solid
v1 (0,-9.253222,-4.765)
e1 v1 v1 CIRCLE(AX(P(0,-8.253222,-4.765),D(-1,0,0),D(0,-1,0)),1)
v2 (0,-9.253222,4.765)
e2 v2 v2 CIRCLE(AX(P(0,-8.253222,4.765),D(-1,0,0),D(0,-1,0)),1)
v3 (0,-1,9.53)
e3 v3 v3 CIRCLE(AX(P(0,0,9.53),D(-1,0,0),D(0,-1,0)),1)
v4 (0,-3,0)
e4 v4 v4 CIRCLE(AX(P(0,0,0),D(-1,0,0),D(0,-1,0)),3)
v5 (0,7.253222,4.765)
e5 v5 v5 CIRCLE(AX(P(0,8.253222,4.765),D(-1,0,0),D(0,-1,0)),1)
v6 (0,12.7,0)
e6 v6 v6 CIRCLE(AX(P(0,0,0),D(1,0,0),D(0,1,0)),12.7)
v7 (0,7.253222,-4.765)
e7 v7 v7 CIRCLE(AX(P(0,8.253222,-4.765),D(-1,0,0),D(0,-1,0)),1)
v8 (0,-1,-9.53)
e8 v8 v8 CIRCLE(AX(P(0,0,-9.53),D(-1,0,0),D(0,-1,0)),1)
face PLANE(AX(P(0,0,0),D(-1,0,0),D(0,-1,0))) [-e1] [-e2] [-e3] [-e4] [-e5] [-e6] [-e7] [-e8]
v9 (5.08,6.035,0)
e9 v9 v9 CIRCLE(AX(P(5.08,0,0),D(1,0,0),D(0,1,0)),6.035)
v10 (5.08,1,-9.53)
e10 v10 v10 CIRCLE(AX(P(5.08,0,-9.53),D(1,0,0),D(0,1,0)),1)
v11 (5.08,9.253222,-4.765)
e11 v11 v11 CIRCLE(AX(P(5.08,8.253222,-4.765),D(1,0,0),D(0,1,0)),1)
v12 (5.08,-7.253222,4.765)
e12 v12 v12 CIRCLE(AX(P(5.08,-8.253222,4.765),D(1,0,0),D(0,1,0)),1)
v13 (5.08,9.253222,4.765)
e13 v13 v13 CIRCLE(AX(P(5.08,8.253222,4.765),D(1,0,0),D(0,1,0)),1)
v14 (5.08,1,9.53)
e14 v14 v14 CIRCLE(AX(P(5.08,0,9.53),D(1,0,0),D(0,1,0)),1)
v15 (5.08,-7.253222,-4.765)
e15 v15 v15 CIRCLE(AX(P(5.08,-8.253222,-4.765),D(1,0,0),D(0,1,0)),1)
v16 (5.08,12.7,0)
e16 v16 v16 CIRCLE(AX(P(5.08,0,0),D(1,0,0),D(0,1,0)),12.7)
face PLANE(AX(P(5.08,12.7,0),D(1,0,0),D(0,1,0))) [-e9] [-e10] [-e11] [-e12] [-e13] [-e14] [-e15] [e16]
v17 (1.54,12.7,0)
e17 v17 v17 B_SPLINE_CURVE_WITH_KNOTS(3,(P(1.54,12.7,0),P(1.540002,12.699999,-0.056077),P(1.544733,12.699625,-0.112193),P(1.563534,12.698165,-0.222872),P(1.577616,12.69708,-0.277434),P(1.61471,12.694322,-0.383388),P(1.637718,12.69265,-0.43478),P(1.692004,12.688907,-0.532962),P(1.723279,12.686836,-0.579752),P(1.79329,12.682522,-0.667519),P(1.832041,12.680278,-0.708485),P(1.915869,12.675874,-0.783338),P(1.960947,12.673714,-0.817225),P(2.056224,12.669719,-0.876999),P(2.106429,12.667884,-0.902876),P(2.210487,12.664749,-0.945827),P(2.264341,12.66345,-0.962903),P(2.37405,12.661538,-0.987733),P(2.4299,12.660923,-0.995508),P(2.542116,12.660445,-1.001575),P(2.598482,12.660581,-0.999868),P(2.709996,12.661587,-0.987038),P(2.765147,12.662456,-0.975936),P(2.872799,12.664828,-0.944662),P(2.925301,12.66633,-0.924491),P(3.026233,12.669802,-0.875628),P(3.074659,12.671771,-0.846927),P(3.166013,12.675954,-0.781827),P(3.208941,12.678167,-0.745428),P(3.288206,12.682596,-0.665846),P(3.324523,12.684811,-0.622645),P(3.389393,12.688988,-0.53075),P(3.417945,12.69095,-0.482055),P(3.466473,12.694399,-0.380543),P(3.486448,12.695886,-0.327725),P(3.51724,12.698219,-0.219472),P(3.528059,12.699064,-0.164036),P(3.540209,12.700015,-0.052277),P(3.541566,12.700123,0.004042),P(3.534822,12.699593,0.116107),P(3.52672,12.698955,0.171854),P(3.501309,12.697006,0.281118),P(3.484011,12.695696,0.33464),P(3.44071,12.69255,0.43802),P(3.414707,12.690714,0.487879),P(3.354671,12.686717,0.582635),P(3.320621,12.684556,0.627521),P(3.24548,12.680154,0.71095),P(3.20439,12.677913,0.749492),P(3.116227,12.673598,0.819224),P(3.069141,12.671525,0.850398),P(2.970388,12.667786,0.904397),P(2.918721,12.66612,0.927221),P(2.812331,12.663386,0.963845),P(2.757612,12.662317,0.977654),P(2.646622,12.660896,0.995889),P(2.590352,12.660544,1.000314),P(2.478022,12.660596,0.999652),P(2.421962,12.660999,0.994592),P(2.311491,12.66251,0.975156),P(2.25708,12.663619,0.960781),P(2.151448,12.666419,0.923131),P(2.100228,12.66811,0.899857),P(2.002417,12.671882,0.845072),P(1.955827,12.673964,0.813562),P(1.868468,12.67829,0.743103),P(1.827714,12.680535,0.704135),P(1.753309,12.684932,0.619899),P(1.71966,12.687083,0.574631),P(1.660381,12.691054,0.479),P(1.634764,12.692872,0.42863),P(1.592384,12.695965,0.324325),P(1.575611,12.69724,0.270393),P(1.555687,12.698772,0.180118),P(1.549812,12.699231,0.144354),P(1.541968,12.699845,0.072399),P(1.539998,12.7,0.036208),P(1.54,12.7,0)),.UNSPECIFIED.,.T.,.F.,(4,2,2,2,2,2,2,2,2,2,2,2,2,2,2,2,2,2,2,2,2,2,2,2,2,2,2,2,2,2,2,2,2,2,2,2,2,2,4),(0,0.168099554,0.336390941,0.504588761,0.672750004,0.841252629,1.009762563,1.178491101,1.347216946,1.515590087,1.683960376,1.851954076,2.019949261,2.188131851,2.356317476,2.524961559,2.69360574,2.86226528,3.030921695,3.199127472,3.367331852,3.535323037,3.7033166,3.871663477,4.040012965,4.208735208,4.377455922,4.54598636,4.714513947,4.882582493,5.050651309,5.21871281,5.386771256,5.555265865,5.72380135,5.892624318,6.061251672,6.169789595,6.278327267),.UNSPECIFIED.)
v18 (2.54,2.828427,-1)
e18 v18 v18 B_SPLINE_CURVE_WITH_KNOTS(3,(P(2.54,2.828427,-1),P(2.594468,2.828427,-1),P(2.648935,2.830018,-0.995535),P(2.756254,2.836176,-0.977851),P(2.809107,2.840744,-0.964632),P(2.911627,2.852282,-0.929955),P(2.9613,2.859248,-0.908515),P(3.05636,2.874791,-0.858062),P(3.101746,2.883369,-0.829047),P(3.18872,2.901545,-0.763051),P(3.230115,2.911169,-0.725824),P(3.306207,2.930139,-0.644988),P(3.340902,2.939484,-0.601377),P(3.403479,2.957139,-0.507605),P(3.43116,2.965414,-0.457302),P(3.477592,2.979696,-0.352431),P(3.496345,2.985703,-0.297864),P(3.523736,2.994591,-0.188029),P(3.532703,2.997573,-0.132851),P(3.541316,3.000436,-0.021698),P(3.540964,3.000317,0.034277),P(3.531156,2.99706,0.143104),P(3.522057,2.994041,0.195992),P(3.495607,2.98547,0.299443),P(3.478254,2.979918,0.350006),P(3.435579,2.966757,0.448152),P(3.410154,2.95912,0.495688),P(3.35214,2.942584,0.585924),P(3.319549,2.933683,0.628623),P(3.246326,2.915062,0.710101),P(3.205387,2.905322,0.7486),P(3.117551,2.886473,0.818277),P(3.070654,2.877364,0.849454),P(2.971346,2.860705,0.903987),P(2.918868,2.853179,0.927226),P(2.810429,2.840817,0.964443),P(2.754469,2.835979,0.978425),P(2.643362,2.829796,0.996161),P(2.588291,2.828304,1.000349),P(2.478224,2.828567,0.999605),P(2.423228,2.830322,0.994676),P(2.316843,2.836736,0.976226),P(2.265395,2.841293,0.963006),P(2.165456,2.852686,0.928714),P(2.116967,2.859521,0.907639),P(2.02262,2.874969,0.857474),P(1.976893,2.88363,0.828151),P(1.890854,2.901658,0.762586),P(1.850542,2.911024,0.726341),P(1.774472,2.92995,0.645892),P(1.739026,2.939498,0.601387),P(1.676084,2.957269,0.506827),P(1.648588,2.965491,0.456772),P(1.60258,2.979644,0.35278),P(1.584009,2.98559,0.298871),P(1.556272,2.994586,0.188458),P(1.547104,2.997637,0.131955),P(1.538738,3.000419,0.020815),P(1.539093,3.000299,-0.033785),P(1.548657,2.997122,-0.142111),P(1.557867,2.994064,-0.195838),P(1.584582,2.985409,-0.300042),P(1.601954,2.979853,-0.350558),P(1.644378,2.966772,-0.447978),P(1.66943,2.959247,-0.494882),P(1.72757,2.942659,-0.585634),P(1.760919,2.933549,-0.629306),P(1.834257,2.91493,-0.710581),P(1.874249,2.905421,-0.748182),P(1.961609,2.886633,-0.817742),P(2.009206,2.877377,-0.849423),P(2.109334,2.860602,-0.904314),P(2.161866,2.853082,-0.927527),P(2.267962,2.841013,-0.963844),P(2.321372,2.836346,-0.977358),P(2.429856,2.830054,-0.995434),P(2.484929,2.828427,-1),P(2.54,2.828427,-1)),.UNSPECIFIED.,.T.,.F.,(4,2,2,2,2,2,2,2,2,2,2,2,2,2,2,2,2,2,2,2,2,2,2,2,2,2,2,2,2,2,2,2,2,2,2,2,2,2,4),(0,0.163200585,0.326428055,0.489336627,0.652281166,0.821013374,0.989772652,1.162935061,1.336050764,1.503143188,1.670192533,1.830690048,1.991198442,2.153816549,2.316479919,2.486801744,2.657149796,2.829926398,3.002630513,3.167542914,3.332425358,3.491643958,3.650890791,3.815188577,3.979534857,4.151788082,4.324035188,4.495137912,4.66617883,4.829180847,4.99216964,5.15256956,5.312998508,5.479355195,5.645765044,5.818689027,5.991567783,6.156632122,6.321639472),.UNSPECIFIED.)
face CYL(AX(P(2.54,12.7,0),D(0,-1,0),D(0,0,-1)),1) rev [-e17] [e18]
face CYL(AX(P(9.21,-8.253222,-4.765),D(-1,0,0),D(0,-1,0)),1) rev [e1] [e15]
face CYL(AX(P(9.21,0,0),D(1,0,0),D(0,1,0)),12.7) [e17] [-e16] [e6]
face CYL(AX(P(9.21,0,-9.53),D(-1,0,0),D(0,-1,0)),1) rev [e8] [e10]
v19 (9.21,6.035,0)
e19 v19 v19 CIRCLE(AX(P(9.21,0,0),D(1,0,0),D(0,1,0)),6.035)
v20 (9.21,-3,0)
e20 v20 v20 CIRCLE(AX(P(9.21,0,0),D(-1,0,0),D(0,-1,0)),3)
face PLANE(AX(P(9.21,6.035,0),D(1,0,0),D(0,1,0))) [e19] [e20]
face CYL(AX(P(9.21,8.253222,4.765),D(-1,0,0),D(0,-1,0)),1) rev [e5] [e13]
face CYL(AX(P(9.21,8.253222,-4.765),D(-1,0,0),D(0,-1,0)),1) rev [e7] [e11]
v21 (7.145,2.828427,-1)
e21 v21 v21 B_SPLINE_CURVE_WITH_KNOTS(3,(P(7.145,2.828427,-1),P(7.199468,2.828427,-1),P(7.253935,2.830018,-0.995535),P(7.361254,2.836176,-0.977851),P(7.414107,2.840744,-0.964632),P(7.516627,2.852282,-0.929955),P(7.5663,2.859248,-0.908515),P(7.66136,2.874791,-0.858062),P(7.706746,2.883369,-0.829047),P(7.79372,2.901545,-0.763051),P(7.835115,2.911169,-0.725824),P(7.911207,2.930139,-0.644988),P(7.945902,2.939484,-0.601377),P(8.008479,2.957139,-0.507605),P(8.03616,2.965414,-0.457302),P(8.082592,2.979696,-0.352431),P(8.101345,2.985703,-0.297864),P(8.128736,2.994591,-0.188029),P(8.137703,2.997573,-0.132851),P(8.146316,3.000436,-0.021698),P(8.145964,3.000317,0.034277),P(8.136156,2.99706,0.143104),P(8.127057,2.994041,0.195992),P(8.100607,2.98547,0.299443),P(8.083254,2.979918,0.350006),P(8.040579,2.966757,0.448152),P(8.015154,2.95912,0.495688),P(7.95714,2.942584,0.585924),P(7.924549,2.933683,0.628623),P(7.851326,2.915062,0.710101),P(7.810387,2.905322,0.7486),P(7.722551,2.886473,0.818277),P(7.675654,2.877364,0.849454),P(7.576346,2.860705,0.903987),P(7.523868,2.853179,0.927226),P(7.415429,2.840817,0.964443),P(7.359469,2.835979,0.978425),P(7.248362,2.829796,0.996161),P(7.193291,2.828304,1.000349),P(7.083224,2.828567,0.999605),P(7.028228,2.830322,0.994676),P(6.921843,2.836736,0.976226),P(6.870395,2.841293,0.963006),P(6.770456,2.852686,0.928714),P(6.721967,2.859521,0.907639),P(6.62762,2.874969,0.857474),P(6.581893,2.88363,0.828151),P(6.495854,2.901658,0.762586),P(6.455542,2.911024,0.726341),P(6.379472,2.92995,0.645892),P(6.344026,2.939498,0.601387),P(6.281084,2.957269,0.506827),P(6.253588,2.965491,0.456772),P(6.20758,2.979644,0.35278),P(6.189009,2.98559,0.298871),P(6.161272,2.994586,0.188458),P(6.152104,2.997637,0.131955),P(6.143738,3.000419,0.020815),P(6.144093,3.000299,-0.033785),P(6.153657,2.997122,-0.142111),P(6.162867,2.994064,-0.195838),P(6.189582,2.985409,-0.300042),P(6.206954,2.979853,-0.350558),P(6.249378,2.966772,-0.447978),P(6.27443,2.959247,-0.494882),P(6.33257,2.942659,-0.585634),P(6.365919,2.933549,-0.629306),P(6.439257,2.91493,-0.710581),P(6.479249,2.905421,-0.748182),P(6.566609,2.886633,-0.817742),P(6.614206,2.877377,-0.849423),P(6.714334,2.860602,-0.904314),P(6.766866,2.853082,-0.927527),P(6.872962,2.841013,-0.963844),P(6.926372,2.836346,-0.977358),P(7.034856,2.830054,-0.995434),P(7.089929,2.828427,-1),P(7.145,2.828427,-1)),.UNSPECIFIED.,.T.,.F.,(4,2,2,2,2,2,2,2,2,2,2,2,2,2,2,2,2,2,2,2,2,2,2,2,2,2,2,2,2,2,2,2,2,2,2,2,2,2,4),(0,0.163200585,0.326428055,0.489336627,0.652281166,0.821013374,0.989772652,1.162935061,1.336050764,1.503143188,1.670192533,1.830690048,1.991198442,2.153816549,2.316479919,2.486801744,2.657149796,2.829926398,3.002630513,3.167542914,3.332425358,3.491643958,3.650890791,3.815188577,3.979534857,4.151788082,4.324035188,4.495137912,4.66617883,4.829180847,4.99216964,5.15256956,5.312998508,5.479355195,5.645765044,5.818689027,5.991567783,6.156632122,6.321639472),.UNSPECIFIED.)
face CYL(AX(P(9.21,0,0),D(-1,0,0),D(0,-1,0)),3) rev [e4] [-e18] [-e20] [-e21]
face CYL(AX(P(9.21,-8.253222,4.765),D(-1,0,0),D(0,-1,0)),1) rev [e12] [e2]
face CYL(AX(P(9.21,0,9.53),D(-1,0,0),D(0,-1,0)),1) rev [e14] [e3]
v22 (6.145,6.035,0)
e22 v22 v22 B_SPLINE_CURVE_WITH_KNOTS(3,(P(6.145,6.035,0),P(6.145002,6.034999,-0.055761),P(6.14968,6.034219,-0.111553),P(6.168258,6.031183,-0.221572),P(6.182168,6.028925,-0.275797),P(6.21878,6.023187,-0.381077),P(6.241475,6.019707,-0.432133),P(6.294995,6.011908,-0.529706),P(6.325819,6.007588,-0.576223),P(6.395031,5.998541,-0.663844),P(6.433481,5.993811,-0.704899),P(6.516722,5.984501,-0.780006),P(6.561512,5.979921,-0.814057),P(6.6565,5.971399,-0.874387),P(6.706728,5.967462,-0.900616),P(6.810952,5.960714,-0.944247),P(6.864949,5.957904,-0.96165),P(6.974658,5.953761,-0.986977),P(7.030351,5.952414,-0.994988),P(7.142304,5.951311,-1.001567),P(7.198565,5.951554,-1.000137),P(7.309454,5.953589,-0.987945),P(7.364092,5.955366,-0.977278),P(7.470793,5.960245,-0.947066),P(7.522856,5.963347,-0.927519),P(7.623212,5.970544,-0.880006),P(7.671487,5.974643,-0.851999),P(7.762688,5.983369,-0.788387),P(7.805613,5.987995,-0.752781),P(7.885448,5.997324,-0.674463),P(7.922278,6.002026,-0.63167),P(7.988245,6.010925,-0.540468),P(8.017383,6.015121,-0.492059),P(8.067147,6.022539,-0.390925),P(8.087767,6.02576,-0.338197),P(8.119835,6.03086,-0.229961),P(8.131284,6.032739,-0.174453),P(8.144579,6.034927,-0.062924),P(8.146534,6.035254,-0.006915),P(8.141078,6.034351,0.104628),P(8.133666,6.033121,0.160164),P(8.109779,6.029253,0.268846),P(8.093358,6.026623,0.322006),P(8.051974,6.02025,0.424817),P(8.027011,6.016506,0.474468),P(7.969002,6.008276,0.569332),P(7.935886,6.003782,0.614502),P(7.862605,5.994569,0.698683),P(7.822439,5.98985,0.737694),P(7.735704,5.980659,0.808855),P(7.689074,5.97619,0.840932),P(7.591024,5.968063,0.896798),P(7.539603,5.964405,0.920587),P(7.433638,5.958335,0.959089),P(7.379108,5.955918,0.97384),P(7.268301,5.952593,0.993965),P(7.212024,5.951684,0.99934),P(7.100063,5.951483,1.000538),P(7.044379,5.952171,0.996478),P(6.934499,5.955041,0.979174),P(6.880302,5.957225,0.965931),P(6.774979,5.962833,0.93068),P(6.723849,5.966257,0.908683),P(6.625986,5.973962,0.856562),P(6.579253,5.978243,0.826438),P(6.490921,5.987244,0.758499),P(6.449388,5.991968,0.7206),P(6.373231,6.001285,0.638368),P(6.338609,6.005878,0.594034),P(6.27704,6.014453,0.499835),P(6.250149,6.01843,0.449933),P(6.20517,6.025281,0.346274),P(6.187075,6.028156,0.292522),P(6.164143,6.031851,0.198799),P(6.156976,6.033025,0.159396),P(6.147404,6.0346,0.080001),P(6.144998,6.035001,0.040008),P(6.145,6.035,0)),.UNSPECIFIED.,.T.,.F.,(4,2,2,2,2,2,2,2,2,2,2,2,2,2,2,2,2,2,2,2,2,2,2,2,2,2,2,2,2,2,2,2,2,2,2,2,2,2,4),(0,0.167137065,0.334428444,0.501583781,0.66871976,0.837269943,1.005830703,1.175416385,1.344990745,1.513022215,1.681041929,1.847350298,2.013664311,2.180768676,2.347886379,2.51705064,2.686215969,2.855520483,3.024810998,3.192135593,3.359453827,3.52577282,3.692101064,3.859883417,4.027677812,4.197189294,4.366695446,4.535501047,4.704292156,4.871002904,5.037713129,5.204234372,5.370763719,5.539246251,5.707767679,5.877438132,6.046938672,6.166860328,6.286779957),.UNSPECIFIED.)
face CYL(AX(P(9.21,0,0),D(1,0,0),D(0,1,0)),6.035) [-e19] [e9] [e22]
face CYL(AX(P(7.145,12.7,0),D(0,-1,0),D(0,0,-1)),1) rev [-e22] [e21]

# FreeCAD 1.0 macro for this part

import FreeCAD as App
import Part
import Sketcher
from FreeCAD import Vector

doc = App.newDocument("Part")
params = doc.addObject("Spreadsheet::Sheet", "Params")
for row, (alias, value) in enumerate([
    ("sketch1_height", "12.7 mm"),
    ("sketch1_width", "9.21 mm"),
    ("sketch1_width2", "4.13 mm"),
    ("revolution_angle", "360 deg"),
    ("sketch2_diameter", "2 mm"),
    ("sketch2_diameter2", "6 mm"),
    ("sketch3_diameter", "2 mm"),
], start=1):
    params.set(f"A{row}", alias)
    params.set(f"B{row}", "=" + value)
    params.setAlias(f"B{row}", alias)

body = doc.addObject("PartDesign::Body", "Body")

sketch1 = body.newObject("Sketcher::SketchObject", "Sketch")
sketch1.AttachmentSupport = (doc.getObject("XY_Plane"), [""])
sketch1.MapMode = "FlatFace"
sketch1.addGeometry([
    Part.LineSegment(Vector(0, 12.7, 0), Vector(0, 0, 0)),
    Part.LineSegment(Vector(0, 0, 0), Vector(9.2, 0, 0)),
    Part.LineSegment(Vector(9.2, 0, 0), Vector(9.2, 6, 0)),
    Part.LineSegment(Vector(9.2, 6, 0), Vector(5.1, 6, 0)),
    Part.LineSegment(Vector(5.1, 6, 0), Vector(5.1, 12.7, 0)),
    Part.LineSegment(Vector(5.1, 12.7, 0), Vector(0, 12.7, 0)),
], False)
sketch1.addConstraint([
    Sketcher.Constraint("Coincident", 0, 2, 1, 1),
    Sketcher.Constraint("Coincident", 1, 2, 2, 1),
    Sketcher.Constraint("Coincident", 2, 2, 3, 1),
    Sketcher.Constraint("Coincident", 3, 2, 4, 1),
    Sketcher.Constraint("Coincident", 4, 2, 5, 1),
    Sketcher.Constraint("Coincident", 5, 2, 0, 1),
    Sketcher.Constraint("Vertical", 0),
    Sketcher.Constraint("Horizontal", 1),
    Sketcher.Constraint("Vertical", 2),
    Sketcher.Constraint("Horizontal", 3),
    Sketcher.Constraint("Vertical", 4),
    Sketcher.Constraint("Horizontal", 5),
    Sketcher.Constraint("Coincident", 0, 2, -1, 1),
    Sketcher.Constraint("DistanceY", 0, 2, 0, 1, 12.7),
    Sketcher.Constraint("DistanceX", 1, 1, 1, 2, 9.21),
    Sketcher.Constraint("DistanceX", 3, 2, 3, 1, 4.13),
    Sketcher.Constraint("DistanceY", 2, 1, 2, 2, 6.035),
])
sketch1.setExpression("Constraints[13]", "Params.sketch1_height")
sketch1.setExpression("Constraints[14]", "Params.sketch1_width")
sketch1.setExpression("Constraints[15]", "Params.sketch1_width2")
revolution = body.newObject("PartDesign::Revolution", "Revolution")
revolution.Profile = sketch1
revolution.ReferenceAxis = (sketch1, ["H_Axis"])
revolution.setExpression("Angle", "Params.revolution_angle")

sketch2 = body.newObject("Sketcher::SketchObject", "Sketch001")
sketch2.AttachmentSupport = (doc.getObject("YZ_Plane"), [""])
sketch2.MapMode = "FlatFace"
sketch2.addGeometry([
    Part.Circle(Vector(0, 9.5, 0), Vector(0, 0, 1), 1),
    Part.Circle(Vector(-8.3, 4.8, 0), Vector(0, 0, 1), 1),
    Part.Circle(Vector(-8.3, -4.8, 0), Vector(0, 0, 1), 1),
    Part.Circle(Vector(0, -9.5, 0), Vector(0, 0, 1), 1),
    Part.Circle(Vector(8.3, -4.8, 0), Vector(0, 0, 1), 1),
    Part.Circle(Vector(8.3, 4.8, 0), Vector(0, 0, 1), 1),
    Part.Circle(Vector(0, 0, 0), Vector(0, 0, 1), 3),
], False)
sketch2.addConstraint([
    Sketcher.Constraint("Coincident", 6, 3, -1, 1),
    Sketcher.Constraint("Equal", 0, 1),
    Sketcher.Constraint("Equal", 1, 2),
    Sketcher.Constraint("Equal", 2, 3),
    Sketcher.Constraint("Equal", 3, 4),
    Sketcher.Constraint("Equal", 4, 5),
    Sketcher.Constraint("Symmetric", 0, 3, 3, 3, -1, 1),
    Sketcher.Constraint("Symmetric", 1, 3, 4, 3, -1, 1),
    Sketcher.Constraint("Symmetric", 2, 3, 5, 3, -1, 1),
    Sketcher.Constraint("Symmetric", 2, 3, 4, 3, -2),
    Sketcher.Constraint("PointOnObject", 0, 3, -2),
    Sketcher.Constraint("Diameter", 0, 2.0),
    Sketcher.Constraint("Diameter", 6, 6.0),
    Sketcher.Constraint("DistanceY", -1, 1, 0, 3, 9.53),
    Sketcher.Constraint("DistanceY", 2, 3, 1, 3, 9.53),
    Sketcher.Constraint("DistanceX", 1, 3, -1, 1, 8.253222),
])
sketch2.setExpression("Constraints[11]", "Params.sketch2_diameter")
sketch2.setExpression("Constraints[12]", "Params.sketch2_diameter2")
pocket1 = body.newObject("PartDesign::Pocket", "Pocket")
pocket1.Profile = sketch2
pocket1.Type = "ThroughAll"
pocket1.Reversed = True

sketch3 = body.newObject("Sketcher::SketchObject", "Sketch002")
sketch3.AttachmentSupport = (doc.getObject("XZ_Plane"), [""])
sketch3.MapMode = "FlatFace"
sketch3.addGeometry([
    Part.Circle(Vector(2.5, 0, 0), Vector(0, 0, 1), 1),
    Part.Circle(Vector(7.1, 0, 0), Vector(0, 0, 1), 1),
], False)
sketch3.addConstraint([
    Sketcher.Constraint("Equal", 0, 1),
    Sketcher.Constraint("PointOnObject", 0, 3, -1),
    Sketcher.Constraint("PointOnObject", 1, 3, -1),
    Sketcher.Constraint("Diameter", 0, 2.0),
    Sketcher.Constraint("DistanceX", -1, 1, 0, 3, 2.54),
    Sketcher.Constraint("DistanceX", -1, 1, 1, 3, 7.145),
])
sketch3.setExpression("Constraints[3]", "Params.sketch3_diameter")
pocket2 = body.newObject("PartDesign::Pocket", "Pocket001")
pocket2.Profile = sketch3
pocket2.Type = "ThroughAll"

doc.recompute()
